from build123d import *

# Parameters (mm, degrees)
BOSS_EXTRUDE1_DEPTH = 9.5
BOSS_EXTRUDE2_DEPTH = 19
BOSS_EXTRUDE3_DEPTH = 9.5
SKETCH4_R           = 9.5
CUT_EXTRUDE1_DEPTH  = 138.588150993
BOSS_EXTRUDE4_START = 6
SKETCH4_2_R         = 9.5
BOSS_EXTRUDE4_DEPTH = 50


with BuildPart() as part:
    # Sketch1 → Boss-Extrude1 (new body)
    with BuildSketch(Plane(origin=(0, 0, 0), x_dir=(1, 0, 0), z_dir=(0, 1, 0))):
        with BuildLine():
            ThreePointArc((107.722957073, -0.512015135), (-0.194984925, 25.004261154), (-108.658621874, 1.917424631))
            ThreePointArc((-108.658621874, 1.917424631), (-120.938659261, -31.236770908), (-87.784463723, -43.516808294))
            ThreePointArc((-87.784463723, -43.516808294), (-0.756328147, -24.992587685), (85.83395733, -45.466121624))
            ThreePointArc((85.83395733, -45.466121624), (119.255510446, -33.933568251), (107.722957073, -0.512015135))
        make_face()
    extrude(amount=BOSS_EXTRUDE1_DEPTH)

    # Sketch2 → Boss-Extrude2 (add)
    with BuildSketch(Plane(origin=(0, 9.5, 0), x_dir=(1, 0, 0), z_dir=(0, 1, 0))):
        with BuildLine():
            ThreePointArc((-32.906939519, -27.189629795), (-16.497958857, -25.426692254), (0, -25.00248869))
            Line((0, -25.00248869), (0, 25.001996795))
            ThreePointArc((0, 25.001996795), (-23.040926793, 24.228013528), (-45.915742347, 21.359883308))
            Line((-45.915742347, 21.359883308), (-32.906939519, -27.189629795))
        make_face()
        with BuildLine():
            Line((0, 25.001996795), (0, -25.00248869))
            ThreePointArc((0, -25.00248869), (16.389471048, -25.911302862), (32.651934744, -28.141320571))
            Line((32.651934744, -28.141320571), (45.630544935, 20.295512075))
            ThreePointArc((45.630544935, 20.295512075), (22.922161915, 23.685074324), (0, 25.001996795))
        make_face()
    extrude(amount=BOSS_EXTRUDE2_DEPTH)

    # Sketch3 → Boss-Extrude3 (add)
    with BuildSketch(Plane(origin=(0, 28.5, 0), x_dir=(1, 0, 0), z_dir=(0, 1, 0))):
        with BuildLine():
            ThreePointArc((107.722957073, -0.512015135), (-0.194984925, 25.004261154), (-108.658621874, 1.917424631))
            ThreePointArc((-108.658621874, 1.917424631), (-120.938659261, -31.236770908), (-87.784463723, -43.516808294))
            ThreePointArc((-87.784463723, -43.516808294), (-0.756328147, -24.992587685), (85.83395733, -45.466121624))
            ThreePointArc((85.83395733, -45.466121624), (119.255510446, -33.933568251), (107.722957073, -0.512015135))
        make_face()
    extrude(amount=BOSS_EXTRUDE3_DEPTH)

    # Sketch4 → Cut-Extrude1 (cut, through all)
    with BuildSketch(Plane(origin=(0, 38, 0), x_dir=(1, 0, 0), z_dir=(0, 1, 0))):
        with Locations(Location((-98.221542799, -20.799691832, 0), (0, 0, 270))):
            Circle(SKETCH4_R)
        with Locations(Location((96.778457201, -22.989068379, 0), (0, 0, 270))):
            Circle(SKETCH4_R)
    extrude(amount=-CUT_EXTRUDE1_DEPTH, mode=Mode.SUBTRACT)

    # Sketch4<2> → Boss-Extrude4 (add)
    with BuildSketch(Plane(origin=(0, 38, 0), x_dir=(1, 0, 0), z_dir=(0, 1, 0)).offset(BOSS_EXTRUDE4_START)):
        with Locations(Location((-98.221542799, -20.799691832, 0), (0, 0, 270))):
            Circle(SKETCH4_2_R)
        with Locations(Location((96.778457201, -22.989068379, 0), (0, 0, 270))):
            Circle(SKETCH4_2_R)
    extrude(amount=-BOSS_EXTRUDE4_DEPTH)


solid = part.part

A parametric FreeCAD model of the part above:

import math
import FreeCAD as App
import Part
import Sketcher
Q = App.Units.Quantity

doc = App.newDocument("Part")
body = doc.addObject("PartDesign::Body", "Body")

# Sketch on XZ plane
sketch1 = body.newObject("Sketcher::SketchObject", "Sketch")
sketch1.AttachmentSupport = (doc.getObject("XZ_Plane"), [""])
sketch1.MapMode = "FlatFace"
sketch1.addGeometry([
    Part.ArcOfCircle(Part.Circle(App.Vector(-3, 228, 0), App.Vector(0, 0, 1), 253), math.radians(-115), math.radians(-64)),
    Part.ArcOfCircle(Part.Circle(App.Vector(-98, 21, 0), App.Vector(0, 0, 1), 25), math.radians(65), math.radians(245)),
    Part.ArcOfCircle(Part.Circle(App.Vector(-3, 228, 0), App.Vector(0, 0, 1), 203), math.radians(-115), math.radians(-64)),
    Part.ArcOfCircle(Part.Circle(App.Vector(97, 23, 0), App.Vector(0, 0, 1), 25), math.radians(-64), math.radians(116)),
], False)
sketch1.addConstraint([
    Sketcher.Constraint("Tangent", 0, 1, 1, 2),
    Sketcher.Constraint("Tangent", 1, 1, 2, 1),
    Sketcher.Constraint("Tangent", 2, 2, 3, 2),
    Sketcher.Constraint("Tangent", 3, 1, 0, 2),
    Sketcher.Constraint("Coincident", 2, 3, 0, 3),
    Sketcher.Constraint("Radius", 0, 253.0),
    Sketcher.Constraint("Radius", 1, 25.0),
    Sketcher.Constraint("DistanceX", 1, 3, 3, 3, 195.0),
    Sketcher.Constraint("DistanceX", 3, 3, 3, 1, 10.9445),
    Sketcher.Constraint("DistanceX", 0, 3, -1, 1, 3.035382),
    Sketcher.Constraint("DistanceY", -1, 1, 1, 3, 20.799692),
])
pad1 = body.newObject("PartDesign::Pad", "Pad")
pad1.Profile = sketch1
pad1.Length = 9.5
pad1.Reversed = True

# Sketch on XZ plane
sketch2 = body.newObject("Sketcher::SketchObject", "Sketch001")
sketch2.AttachmentSupport = (doc.getObject("XZ_Plane"), [""])
sketch2.MapMode = "FlatFace"
sketch2.AttachmentOffset = App.Placement(App.Vector(0, 0, -9.5), App.Rotation())
sketch2.addGeometry([
    Part.ArcOfCircle(Part.Circle(App.Vector(-3, 228, 0), App.Vector(0, 0, 1), 203), math.radians(-98.46), math.radians(-89.14)),  # 0
    Part.ArcOfCircle(Part.Circle(App.Vector(-3, 228, 0), App.Vector(0, 0, 1), 203), math.radians(-89.14), math.radians(-79.87)),  # 1
    Part.LineSegment(App.Vector(33, 28, 0), App.Vector(46, -20, 0)),  # 2
    Part.ArcOfCircle(Part.Circle(App.Vector(-3, 228, 0), App.Vector(0, 0, 1), 253), math.radians(-89.31), math.radians(-78.91)),  # 3
    Part.ArcOfCircle(Part.Circle(App.Vector(-3, 228, 0), App.Vector(0, 0, 1), 253), math.radians(-99.76), math.radians(-89.31)),  # 4
    Part.LineSegment(App.Vector(-46, -21, 0), App.Vector(-33, 27, 0)),  # 5
], False)
sketch2.addConstraint([
    Sketcher.Constraint("Tangent", 0, 2, 1, 1),
    Sketcher.Constraint("Coincident", 1, 2, 2, 1),
    Sketcher.Constraint("Coincident", 2, 2, 3, 2),
    Sketcher.Constraint("Tangent", 3, 1, 4, 2),
    Sketcher.Constraint("Coincident", 4, 1, 5, 1),
    Sketcher.Constraint("Coincident", 5, 2, 0, 1),
    Sketcher.Constraint("Coincident", 3, 3, 0, 3),
    Sketcher.Constraint("Equal", 0, 1),
    Sketcher.Constraint("Equal", 3, 4),
    Sketcher.Constraint("PointOnObject", 0, 2, -2),
    Sketcher.Constraint("PointOnObject", 3, 1, -2),
    Sketcher.Constraint("Radius", 0, 203.0),
    Sketcher.Constraint("Radius", 3, 253.0),
    Sketcher.Constraint("Angle", 2, Q("-75 deg")),
    Sketcher.Constraint("Angle", 5, Q("75 deg")),
    Sketcher.Constraint("DistanceY", 2, 2, 0, 2, 45.298001),
    Sketcher.Constraint("DistanceX", 0, 3, -1, 1, 3.035382),
    Sketcher.Constraint("DistanceY", -1, 1, 0, 2, 25.002489),
    Sketcher.Constraint("DistanceX", 5, 2, -1, 1, 32.90694),
])
pad2 = body.newObject("PartDesign::Pad", "Pad001")
pad2.Profile = sketch2
pad2.Length = 19
pad2.Reversed = True

# Sketch on XZ plane
sketch3 = body.newObject("Sketcher::SketchObject", "Sketch002")
sketch3.AttachmentSupport = (doc.getObject("XZ_Plane"), [""])
sketch3.MapMode = "FlatFace"
sketch3.AttachmentOffset = App.Placement(App.Vector(0, 0, -28.5), App.Rotation())
sketch3.addGeometry([
    Part.ArcOfCircle(Part.Circle(App.Vector(-3, 228, 0), App.Vector(0, 0, 1), 253), math.radians(-115), math.radians(-64)),
    Part.ArcOfCircle(Part.Circle(App.Vector(-98, 21, 0), App.Vector(0, 0, 1), 25), math.radians(65), math.radians(245)),
    Part.ArcOfCircle(Part.Circle(App.Vector(-3, 228, 0), App.Vector(0, 0, 1), 203), math.radians(-115), math.radians(-64)),
    Part.ArcOfCircle(Part.Circle(App.Vector(97, 23, 0), App.Vector(0, 0, 1), 25), math.radians(-64), math.radians(116)),
], False)
sketch3.addConstraint([
    Sketcher.Constraint("Tangent", 0, 1, 1, 2),
    Sketcher.Constraint("Tangent", 1, 1, 2, 1),
    Sketcher.Constraint("Tangent", 2, 2, 3, 2),
    Sketcher.Constraint("Tangent", 3, 1, 0, 2),
    Sketcher.Constraint("Coincident", 2, 3, 0, 3),
    Sketcher.Constraint("Radius", 0, 253.0),
    Sketcher.Constraint("Radius", 1, 25.0),
    Sketcher.Constraint("DistanceX", 1, 3, 3, 3, 195.0),
    Sketcher.Constraint("DistanceX", 3, 3, 3, 1, 10.9445),
    Sketcher.Constraint("DistanceX", 0, 3, -1, 1, 3.035382),
    Sketcher.Constraint("DistanceY", -1, 1, 1, 3, 20.799692),
])
pad3 = body.newObject("PartDesign::Pad", "Pad002")
pad3.Profile = sketch3
pad3.Length = 9.5
pad3.Reversed = True

# Sketch on XZ plane
sketch4 = body.newObject("Sketcher::SketchObject", "Sketch003")
sketch4.AttachmentSupport = (doc.getObject("XZ_Plane"), [""])
sketch4.MapMode = "FlatFace"
sketch4.AttachmentOffset = App.Placement(App.Vector(0, 0, -38), App.Rotation())
sketch4.addGeometry([
    Part.Circle(App.Vector(-98, 21, 0), App.Vector(0, 0, 1), 10),
    Part.Circle(App.Vector(97, 23, 0), App.Vector(0, 0, 1), 10),
], False)
sketch4.addConstraint([
    Sketcher.Constraint("Equal", 0, 1),
    Sketcher.Constraint("Diameter", 0, 19.0),
    Sketcher.Constraint("DistanceX", 0, 3, 1, 3, 195.0),
    Sketcher.Constraint("DistanceY", -1, 1, 0, 3, 20.799692),
    Sketcher.Constraint("DistanceY", -1, 1, 1, 3, 22.989068),
    Sketcher.Constraint("DistanceX", 0, 3, -1, 1, 98.221543),
])
pocket1 = body.newObject("PartDesign::Pocket", "Pocket")
pocket1.Profile = sketch4
pocket1.Type = "ThroughAll"
pocket1.Reversed = True

# Sketch on XZ plane
sketch5 = body.newObject("Sketcher::SketchObject", "Sketch004")
sketch5.AttachmentSupport = (doc.getObject("XZ_Plane"), [""])
sketch5.MapMode = "FlatFace"
sketch5.AttachmentOffset = App.Placement(App.Vector(0, 0, -44), App.Rotation())
sketch5.addGeometry([
    Part.Circle(App.Vector(-98, 21, 0), App.Vector(0, 0, 1), 10),
    Part.Circle(App.Vector(97, 23, 0), App.Vector(0, 0, 1), 10),
], False)
sketch5.addConstraint([
    Sketcher.Constraint("Equal", 0, 1),
    Sketcher.Constraint("Diameter", 0, 19.0),
    Sketcher.Constraint("DistanceX", 0, 3, 1, 3, 195.0),
    Sketcher.Constraint("DistanceY", -1, 1, 0, 3, 20.799692),
    Sketcher.Constraint("DistanceY", -1, 1, 1, 3, 22.989068),
    Sketcher.Constraint("DistanceX", 0, 3, -1, 1, 98.221543),
])
pad4 = body.newObject("PartDesign::Pad", "Pad003")
pad4.Profile = sketch5
pad4.Length = 50

doc.recompute()
